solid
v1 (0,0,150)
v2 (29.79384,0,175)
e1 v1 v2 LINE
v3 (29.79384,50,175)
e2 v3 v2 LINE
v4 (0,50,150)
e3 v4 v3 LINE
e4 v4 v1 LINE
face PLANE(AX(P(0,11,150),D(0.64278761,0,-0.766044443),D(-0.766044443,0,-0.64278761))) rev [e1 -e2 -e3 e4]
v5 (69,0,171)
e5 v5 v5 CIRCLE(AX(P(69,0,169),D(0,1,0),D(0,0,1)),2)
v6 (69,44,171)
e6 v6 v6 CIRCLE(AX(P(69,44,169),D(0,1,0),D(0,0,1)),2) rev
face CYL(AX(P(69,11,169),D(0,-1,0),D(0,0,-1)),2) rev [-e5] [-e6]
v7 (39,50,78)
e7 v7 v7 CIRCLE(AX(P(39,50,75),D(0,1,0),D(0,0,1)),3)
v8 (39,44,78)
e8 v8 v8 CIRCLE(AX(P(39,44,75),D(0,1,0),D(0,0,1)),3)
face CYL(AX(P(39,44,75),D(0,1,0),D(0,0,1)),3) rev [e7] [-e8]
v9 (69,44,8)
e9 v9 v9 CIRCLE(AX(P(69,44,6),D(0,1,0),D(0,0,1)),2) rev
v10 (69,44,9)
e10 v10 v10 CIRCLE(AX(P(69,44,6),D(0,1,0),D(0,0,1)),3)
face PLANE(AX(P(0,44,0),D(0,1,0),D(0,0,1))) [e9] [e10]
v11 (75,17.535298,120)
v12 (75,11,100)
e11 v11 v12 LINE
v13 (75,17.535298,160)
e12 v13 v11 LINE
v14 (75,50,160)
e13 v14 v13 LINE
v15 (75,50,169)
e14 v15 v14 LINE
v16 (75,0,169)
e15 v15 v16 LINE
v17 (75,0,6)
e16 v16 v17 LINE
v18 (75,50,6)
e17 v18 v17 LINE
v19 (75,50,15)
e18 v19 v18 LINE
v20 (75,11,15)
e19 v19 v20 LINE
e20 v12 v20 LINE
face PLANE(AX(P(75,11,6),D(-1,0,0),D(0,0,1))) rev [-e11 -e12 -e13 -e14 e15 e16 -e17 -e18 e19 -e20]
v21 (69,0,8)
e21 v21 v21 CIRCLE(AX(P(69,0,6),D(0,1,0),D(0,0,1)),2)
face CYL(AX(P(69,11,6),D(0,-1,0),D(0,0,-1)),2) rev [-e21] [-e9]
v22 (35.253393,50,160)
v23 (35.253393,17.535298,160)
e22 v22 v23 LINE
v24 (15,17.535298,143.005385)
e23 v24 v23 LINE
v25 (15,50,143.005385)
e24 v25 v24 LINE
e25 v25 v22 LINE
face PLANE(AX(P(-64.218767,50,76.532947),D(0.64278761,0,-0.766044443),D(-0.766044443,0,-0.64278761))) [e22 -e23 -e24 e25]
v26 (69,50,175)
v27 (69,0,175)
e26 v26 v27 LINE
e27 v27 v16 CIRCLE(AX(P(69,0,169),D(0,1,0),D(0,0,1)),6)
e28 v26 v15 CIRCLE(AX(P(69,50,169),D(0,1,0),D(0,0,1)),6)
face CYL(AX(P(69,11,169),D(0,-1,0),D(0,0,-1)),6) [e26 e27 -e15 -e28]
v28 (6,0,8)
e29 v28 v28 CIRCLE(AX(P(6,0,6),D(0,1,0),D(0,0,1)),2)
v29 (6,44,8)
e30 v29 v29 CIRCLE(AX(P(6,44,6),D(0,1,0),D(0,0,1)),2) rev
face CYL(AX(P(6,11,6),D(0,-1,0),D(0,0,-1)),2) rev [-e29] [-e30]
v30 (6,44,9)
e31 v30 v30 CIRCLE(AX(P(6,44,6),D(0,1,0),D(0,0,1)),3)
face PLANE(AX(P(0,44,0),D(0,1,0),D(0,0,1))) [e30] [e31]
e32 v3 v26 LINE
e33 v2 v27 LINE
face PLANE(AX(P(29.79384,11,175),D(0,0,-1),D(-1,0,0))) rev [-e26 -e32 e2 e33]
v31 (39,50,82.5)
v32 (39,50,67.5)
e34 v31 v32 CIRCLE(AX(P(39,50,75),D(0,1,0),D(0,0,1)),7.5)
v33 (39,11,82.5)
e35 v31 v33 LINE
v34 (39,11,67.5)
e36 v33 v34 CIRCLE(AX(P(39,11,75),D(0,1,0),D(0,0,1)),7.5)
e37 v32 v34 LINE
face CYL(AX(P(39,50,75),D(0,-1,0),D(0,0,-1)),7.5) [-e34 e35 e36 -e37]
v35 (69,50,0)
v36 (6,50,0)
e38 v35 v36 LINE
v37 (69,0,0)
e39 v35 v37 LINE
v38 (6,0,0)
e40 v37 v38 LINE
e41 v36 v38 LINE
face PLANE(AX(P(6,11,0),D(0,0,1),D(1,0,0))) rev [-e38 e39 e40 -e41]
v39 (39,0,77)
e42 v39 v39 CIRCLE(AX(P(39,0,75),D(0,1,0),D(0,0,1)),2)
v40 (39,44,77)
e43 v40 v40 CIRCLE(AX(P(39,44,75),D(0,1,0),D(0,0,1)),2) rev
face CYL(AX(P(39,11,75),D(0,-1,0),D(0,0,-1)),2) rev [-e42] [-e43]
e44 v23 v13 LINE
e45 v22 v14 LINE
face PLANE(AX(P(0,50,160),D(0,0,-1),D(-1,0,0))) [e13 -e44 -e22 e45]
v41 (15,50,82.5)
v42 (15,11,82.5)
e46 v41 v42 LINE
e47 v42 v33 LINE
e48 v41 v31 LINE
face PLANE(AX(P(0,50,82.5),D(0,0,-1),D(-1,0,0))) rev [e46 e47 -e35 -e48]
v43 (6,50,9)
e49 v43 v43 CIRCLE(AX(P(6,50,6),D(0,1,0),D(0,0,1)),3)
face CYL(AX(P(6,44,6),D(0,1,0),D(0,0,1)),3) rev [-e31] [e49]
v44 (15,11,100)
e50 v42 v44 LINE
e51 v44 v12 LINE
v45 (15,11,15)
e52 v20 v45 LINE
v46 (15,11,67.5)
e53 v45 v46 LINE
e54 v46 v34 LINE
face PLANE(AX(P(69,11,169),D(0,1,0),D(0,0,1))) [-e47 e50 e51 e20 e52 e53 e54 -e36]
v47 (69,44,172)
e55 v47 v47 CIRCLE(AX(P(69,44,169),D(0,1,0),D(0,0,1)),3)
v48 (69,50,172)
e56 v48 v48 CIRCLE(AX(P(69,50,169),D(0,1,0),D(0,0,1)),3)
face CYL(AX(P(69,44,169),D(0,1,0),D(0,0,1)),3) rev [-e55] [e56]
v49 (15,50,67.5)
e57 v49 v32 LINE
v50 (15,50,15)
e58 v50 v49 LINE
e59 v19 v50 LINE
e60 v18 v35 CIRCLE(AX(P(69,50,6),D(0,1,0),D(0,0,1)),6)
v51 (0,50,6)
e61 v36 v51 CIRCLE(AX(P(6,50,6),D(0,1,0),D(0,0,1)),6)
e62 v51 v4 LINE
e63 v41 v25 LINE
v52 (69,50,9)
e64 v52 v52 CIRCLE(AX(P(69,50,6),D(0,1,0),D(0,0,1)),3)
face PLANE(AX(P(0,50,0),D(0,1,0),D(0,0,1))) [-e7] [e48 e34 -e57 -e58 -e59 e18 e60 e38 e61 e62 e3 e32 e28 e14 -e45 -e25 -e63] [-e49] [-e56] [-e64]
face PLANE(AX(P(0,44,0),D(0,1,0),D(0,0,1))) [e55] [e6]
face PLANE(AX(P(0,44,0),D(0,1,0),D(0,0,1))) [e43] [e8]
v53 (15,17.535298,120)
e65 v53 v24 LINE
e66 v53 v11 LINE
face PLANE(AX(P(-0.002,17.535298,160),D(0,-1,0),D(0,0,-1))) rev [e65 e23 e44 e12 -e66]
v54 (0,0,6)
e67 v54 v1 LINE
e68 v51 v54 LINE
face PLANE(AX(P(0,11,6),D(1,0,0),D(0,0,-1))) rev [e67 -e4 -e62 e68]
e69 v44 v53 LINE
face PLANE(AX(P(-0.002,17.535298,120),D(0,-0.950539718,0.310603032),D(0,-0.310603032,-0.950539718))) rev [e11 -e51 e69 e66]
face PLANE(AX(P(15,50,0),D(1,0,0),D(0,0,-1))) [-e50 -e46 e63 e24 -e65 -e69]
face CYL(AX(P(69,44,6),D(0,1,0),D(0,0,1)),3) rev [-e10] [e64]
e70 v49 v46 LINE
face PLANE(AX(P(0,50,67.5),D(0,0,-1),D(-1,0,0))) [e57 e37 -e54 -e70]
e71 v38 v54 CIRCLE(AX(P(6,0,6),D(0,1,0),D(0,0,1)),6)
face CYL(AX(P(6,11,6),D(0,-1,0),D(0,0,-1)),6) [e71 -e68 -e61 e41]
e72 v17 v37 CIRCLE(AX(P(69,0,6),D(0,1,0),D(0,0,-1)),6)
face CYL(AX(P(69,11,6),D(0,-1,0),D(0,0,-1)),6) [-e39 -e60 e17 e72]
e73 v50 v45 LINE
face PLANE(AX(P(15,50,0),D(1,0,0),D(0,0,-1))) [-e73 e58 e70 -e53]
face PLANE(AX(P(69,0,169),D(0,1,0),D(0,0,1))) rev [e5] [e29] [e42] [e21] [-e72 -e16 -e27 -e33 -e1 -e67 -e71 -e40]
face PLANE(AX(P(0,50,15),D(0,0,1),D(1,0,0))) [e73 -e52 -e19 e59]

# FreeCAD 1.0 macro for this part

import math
import FreeCAD as App
import Part
import Sketcher
Q = App.Units.Quantity

doc = App.newDocument("Part")
params = doc.addObject("Spreadsheet::Sheet", "Params")
for row, (alias, value) in enumerate([
    ("sketch1_diameter", "4 mm"),
    ("sketch1_radius", "6 mm"),
    ("sketch1_width", "63 mm"),
    ("sketch1_height", "163 mm"),
    ("sketch1_height2", "144 mm"),
    ("pad1_length", "11 mm"),
    ("sketch2_diameter", "4 mm"),
    ("sketch2_radius", "6 mm"),
    ("sketch2_radius2", "7.5 mm"),
    ("sketch2_width", "24 mm"),
    ("sketch2_width2", "60 mm"),
    ("pad2_length", "39 mm"),
    ("sketch3_width", "10 mm"),
    ("sketch3_height", "40 mm"),
    ("sketch3_length", "10 mm"),
    ("sketch4_diameter", "6 mm"),
    ("sketch4_diameter2", "4 mm"),
    ("pocket1_length", "6 mm"),
], start=1):
    params.set(f"A{row}", alias)
    params.set(f"B{row}", "=" + value)
    params.setAlias(f"B{row}", alias)

body = doc.addObject("PartDesign::Body", "Body")

sketch1 = body.newObject("Sketcher::SketchObject", "Sketch")
sketch1.AttachmentSupport = (doc.getObject("XZ_Plane"), [""])
sketch1.MapMode = "FlatFace"
sketch1.addGeometry([
    Part.LineSegment(App.Vector(0, 150, 0), App.Vector(29.8, 175, 0)),
    Part.LineSegment(App.Vector(29.8, 175, 0), App.Vector(69, 175, 0)),
    Part.ArcOfCircle(Part.Circle(App.Vector(69, 169, 0), App.Vector(0, 0, 1), 6), math.radians(0), math.radians(90)),
    Part.LineSegment(App.Vector(75, 169, 0), App.Vector(75, 6, 0)),
    Part.ArcOfCircle(Part.Circle(App.Vector(69, 6, 0), App.Vector(0, 0, 1), 6), math.radians(-90), math.radians(0)),
    Part.LineSegment(App.Vector(69, 0, 0), App.Vector(6, 0, 0)),
    Part.ArcOfCircle(Part.Circle(App.Vector(6, 6, 0), App.Vector(0, 0, 1), 6), math.radians(180), math.radians(270)),
    Part.LineSegment(App.Vector(0, 6, 0), App.Vector(0, 150, 0)),
    Part.Circle(App.Vector(69, 169, 0), App.Vector(0, 0, 1), 2),
    Part.Circle(App.Vector(6, 6, 0), App.Vector(0, 0, 1), 2),
    Part.Circle(App.Vector(39, 75, 0), App.Vector(0, 0, 1), 2),
    Part.Circle(App.Vector(69, 6, 0), App.Vector(0, 0, 1), 2),
], False)
sketch1.addConstraint([
    Sketcher.Constraint("Coincident", 0, 2, 1, 1),
    Sketcher.Constraint("Tangent", 1, 2, 2, 2),
    Sketcher.Constraint("Tangent", 2, 1, 3, 1),
    Sketcher.Constraint("Tangent", 3, 2, 4, 2),
    Sketcher.Constraint("Tangent", 4, 1, 5, 1),
    Sketcher.Constraint("Tangent", 5, 2, 6, 2),
    Sketcher.Constraint("Tangent", 6, 1, 7, 1),
    Sketcher.Constraint("Coincident", 7, 2, 0, 1),
    Sketcher.Constraint("Horizontal", 1),
    Sketcher.Constraint("Vertical", 3),
    Sketcher.Constraint("Horizontal", 5),
    Sketcher.Constraint("Vertical", 7),
    Sketcher.Constraint("Coincident", 8, 3, 2, 3),
    Sketcher.Constraint("Coincident", 9, 3, 6, 3),
    Sketcher.Constraint("Coincident", 11, 3, 4, 3),
    Sketcher.Constraint("Equal", 2, 4),
    Sketcher.Constraint("Equal", 4, 6),
    Sketcher.Constraint("Equal", 8, 9),
    Sketcher.Constraint("Equal", 9, 10),
    Sketcher.Constraint("Equal", 10, 11),
    Sketcher.Constraint("PointOnObject", 4, 1, -1),
    Sketcher.Constraint("PointOnObject", 6, 1, -2),
    Sketcher.Constraint("Diameter", 8, 4.0),
    Sketcher.Constraint("Radius", 2, 6.0),
    Sketcher.Constraint("DistanceX", 5, 2, 5, 1, 63.0),
    Sketcher.Constraint("DistanceY", 3, 2, 3, 1, 163.0),
    Sketcher.Constraint("DistanceY", 7, 1, 7, 2, 144.0),
    Sketcher.Constraint("Angle", 0, Q("40 deg")),
    Sketcher.Constraint("DistanceX", -1, 1, 10, 3, 39.0),
    Sketcher.Constraint("DistanceY", -1, 1, 10, 3, 75.0),
])
sketch1.setExpression("Constraints[22]", "Params.sketch1_diameter")
sketch1.setExpression("Constraints[23]", "Params.sketch1_radius")
sketch1.setExpression("Constraints[24]", "Params.sketch1_width")
sketch1.setExpression("Constraints[25]", "Params.sketch1_height")
sketch1.setExpression("Constraints[26]", "Params.sketch1_height2")
pad1 = body.newObject("PartDesign::Pad", "Pad")
pad1.Profile = sketch1
pad1.setExpression("Length", "Params.pad1_length")
pad1.Reversed = True

sketch2 = body.newObject("Sketcher::SketchObject", "Sketch001")
sketch2.AttachmentSupport = (doc.getObject("XZ_Plane"), [""])
sketch2.MapMode = "FlatFace"
sketch2.AttachmentOffset = App.Placement(App.Vector(0, 0, -11), App.Rotation())
sketch2.addGeometry([
    Part.LineSegment(App.Vector(39, 67.5, 0), App.Vector(15, 67.5, 0)),
    Part.LineSegment(App.Vector(15, 67.5, 0), App.Vector(15, 15, 0)),
    Part.LineSegment(App.Vector(15, 15, 0), App.Vector(75, 15, 0)),
    Part.LineSegment(App.Vector(75, 15, 0), App.Vector(75, 6, 0)),
    Part.ArcOfCircle(Part.Circle(App.Vector(69, 6, 0), App.Vector(0, 0, 1), 6), math.radians(-90), math.radians(0)),
    Part.LineSegment(App.Vector(69, 0, 0), App.Vector(6, 0, 0)),
    Part.ArcOfCircle(Part.Circle(App.Vector(6, 6, 0), App.Vector(0, 0, 1), 6), math.radians(180), math.radians(270)),
    Part.LineSegment(App.Vector(0, 6, 0), App.Vector(0, 150, 0)),
    Part.LineSegment(App.Vector(0, 150, 0), App.Vector(29.8, 175, 0)),
    Part.LineSegment(App.Vector(29.8, 175, 0), App.Vector(69, 175, 0)),
    Part.ArcOfCircle(Part.Circle(App.Vector(69, 169, 0), App.Vector(0, 0, 1), 6), math.radians(0), math.radians(90)),
    Part.LineSegment(App.Vector(75, 169, 0), App.Vector(75, 160, 0)),
    Part.LineSegment(App.Vector(75, 160, 0), App.Vector(35.3, 160, 0)),
    Part.LineSegment(App.Vector(35.3, 160, 0), App.Vector(15, 143, 0)),
    Part.LineSegment(App.Vector(15, 143, 0), App.Vector(15, 82.5, 0)),
    Part.LineSegment(App.Vector(15, 82.5, 0), App.Vector(39, 82.5, 0)),
    Part.ArcOfCircle(Part.Circle(App.Vector(39, 75, 0), App.Vector(0, 0, 1), 7.5), math.radians(-90), math.radians(90)),
    Part.Circle(App.Vector(69, 169, 0), App.Vector(0, 0, 1), 2),
    Part.Circle(App.Vector(6, 6, 0), App.Vector(0, 0, 1), 2),
    Part.Circle(App.Vector(39, 75, 0), App.Vector(0, 0, 1), 2),
    Part.Circle(App.Vector(69, 6, 0), App.Vector(0, 0, 1), 2),
], False)
sketch2.addConstraint([
    Sketcher.Constraint("Coincident", 0, 2, 1, 1),
    Sketcher.Constraint("Coincident", 1, 2, 2, 1),
    Sketcher.Constraint("Coincident", 2, 2, 3, 1),
    Sketcher.Constraint("Tangent", 3, 2, 4, 2),
    Sketcher.Constraint("Tangent", 4, 1, 5, 1),
    Sketcher.Constraint("Tangent", 5, 2, 6, 2),
    Sketcher.Constraint("Tangent", 6, 1, 7, 1),
    Sketcher.Constraint("Coincident", 7, 2, 8, 1),
    Sketcher.Constraint("Coincident", 8, 2, 9, 1),
    Sketcher.Constraint("Tangent", 9, 2, 10, 2),
    Sketcher.Constraint("Tangent", 10, 1, 11, 1),
    Sketcher.Constraint("Coincident", 11, 2, 12, 1),
    Sketcher.Constraint("Coincident", 12, 2, 13, 1),
    Sketcher.Constraint("Coincident", 13, 2, 14, 1),
    Sketcher.Constraint("Coincident", 14, 2, 15, 1),
    Sketcher.Constraint("Tangent", 15, 2, 16, 2),
    Sketcher.Constraint("Tangent", 16, 1, 0, 1),
    Sketcher.Constraint("Horizontal", 0),
    Sketcher.Constraint("Vertical", 1),
    Sketcher.Constraint("Horizontal", 2),
    Sketcher.Constraint("Vertical", 3),
    Sketcher.Constraint("Horizontal", 5),
    Sketcher.Constraint("Vertical", 7),
    Sketcher.Constraint("Horizontal", 9),
    Sketcher.Constraint("Vertical", 11),
    Sketcher.Constraint("Horizontal", 12),
    Sketcher.Constraint("Vertical", 14),
    Sketcher.Constraint("Horizontal", 15),
    Sketcher.Constraint("Coincident", 17, 3, 10, 3),
    Sketcher.Constraint("Coincident", 18, 3, 6, 3),
    Sketcher.Constraint("Coincident", 19, 3, 16, 3),
    Sketcher.Constraint("Coincident", 20, 3, 4, 3),
    Sketcher.Constraint("Equal", 4, 6),
    Sketcher.Constraint("Equal", 6, 10),
    Sketcher.Constraint("Equal", 17, 18),
    Sketcher.Constraint("Equal", 18, 19),
    Sketcher.Constraint("Equal", 19, 20),
    Sketcher.Constraint("PointOnObject", 4, 1, -1),
    Sketcher.Constraint("PointOnObject", 6, 1, -2),
    Sketcher.Constraint("Parallel", 8, 13),
    Sketcher.Constraint("Vertical", 4, 3, 10, 3),
    Sketcher.Constraint("Vertical", 1, 2, 13, 2),
    Sketcher.Constraint("Equal", 3, 11),
    Sketcher.Constraint("Diameter", 17, 4.0),
    Sketcher.Constraint("Radius", 4, 6.0),
    Sketcher.Constraint("Radius", 16, 7.5),
    Sketcher.Constraint("DistanceX", 0, 2, 0, 1, 24.0),
    Sketcher.Constraint("DistanceX", 2, 1, 2, 2, 60.0),
    Sketcher.Constraint("DistanceX", 5, 2, 5, 1, 63.0),
    Sketcher.Constraint("DistanceY", 3, 2, 3, 1, 9.0),
    Sketcher.Constraint("DistanceY", 7, 1, 7, 2, 144.0),
    Sketcher.Constraint("Angle", 8, Q("40 deg")),
    Sketcher.Constraint("DistanceY", 1, 2, 1, 1, 52.5),
    Sketcher.Constraint("DistanceY", -1, 1, 10, 3, 169.0),
    Sketcher.Constraint("DistanceX", 12, 2, 12, 1, 39.746607),
])
sketch2.setExpression("Constraints[43]", "Params.sketch2_diameter")
sketch2.setExpression("Constraints[44]", "Params.sketch2_radius")
sketch2.setExpression("Constraints[45]", "Params.sketch2_radius2")
sketch2.setExpression("Constraints[46]", "Params.sketch2_width")
sketch2.setExpression("Constraints[47]", "Params.sketch2_width2")
pad2 = body.newObject("PartDesign::Pad", "Pad001")
pad2.Profile = sketch2
pad2.setExpression("Length", "Params.pad2_length")
pad2.Reversed = True

sketch3 = body.newObject("Sketcher::SketchObject", "Sketch002")
sketch3.AttachmentSupport = (doc.getObject("YZ_Plane"), [""])
sketch3.MapMode = "FlatFace"
sketch3.AttachmentOffset = App.Placement(App.Vector(0, 0, 75), App.Rotation())
sketch3.addGeometry([
    Part.LineSegment(App.Vector(18, 120, 0), App.Vector(18, 160, 0)),
    Part.LineSegment(App.Vector(18, 160, 0), App.Vector(8, 160, 0)),
    Part.LineSegment(App.Vector(8, 160, 0), App.Vector(8, 122, 0)),
    Part.LineSegment(App.Vector(8, 122, 0), App.Vector(1, 103, 0)),
    Part.LineSegment(App.Vector(1, 103, 0), App.Vector(11, 100, 0)),
    Part.LineSegment(App.Vector(11, 100, 0), App.Vector(18, 120, 0)),
], False)
sketch3.addConstraint([
    Sketcher.Constraint("Coincident", 0, 2, 1, 1),
    Sketcher.Constraint("Coincident", 1, 2, 2, 1),
    Sketcher.Constraint("Coincident", 2, 2, 3, 1),
    Sketcher.Constraint("Coincident", 3, 2, 4, 1),
    Sketcher.Constraint("Coincident", 4, 2, 5, 1),
    Sketcher.Constraint("Coincident", 5, 2, 0, 1),
    Sketcher.Constraint("Vertical", 0),
    Sketcher.Constraint("Horizontal", 1),
    Sketcher.Constraint("Vertical", 2),
    Sketcher.Constraint("Perpendicular", 3, 4),
    Sketcher.Constraint("Perpendicular", 4, 5),
    Sketcher.Constraint("DistanceX", 1, 2, 1, 1, 10.0),
    Sketcher.Constraint("DistanceY", 0, 1, 0, 2, 40.0),
    Sketcher.Constraint("Distance", 4, 10.0),
    Sketcher.Constraint("DistanceY", -1, 1, 0, 2, 160.0),
    Sketcher.Constraint("DistanceX", -1, 1, 4, 2, 11.0),
    Sketcher.Constraint("DistanceY", -1, 1, 4, 2, 100.0),
    Sketcher.Constraint("DistanceX", -1, 1, 0, 2, 17.535298),
])
sketch3.setExpression("Constraints[11]", "Params.sketch3_width")
sketch3.setExpression("Constraints[12]", "Params.sketch3_height")
sketch3.setExpression("Constraints[13]", "Params.sketch3_length")
pad3 = body.newObject("PartDesign::Pad", "Pad002")
pad3.Profile = sketch3
pad3.Type = "UpToFirst"
pad3.Reversed = True

sketch4 = body.newObject("Sketcher::SketchObject", "Sketch003")
sketch4.AttachmentSupport = (doc.getObject("XZ_Plane"), [""])
sketch4.MapMode = "FlatFace"
sketch4.AttachmentOffset = App.Placement(App.Vector(0, 0, -44), App.Rotation())
sketch4.addGeometry([
    Part.Circle(App.Vector(69, 6, 0), App.Vector(0, 0, 1), 3),
    Part.Circle(App.Vector(6, 6, 0), App.Vector(0, 0, 1), 3),
    Part.Circle(App.Vector(6, 6, 0), App.Vector(0, 0, 1), 2),
    Part.Circle(App.Vector(39, 75, 0), App.Vector(0, 0, 1), 3),
    Part.Circle(App.Vector(39, 75, 0), App.Vector(0, 0, 1), 2),
    Part.Circle(App.Vector(69, 169, 0), App.Vector(0, 0, 1), 3),
    Part.Circle(App.Vector(69, 169, 0), App.Vector(0, 0, 1), 2),
], False)
sketch4.addConstraint([
    Sketcher.Constraint("Coincident", 2, 3, 1, 3),
    Sketcher.Constraint("Coincident", 4, 3, 3, 3),
    Sketcher.Constraint("Coincident", 6, 3, 5, 3),
    Sketcher.Constraint("Equal", 0, 1),
    Sketcher.Constraint("Equal", 1, 3),
    Sketcher.Constraint("Equal", 2, 4),
    Sketcher.Constraint("Equal", 3, 5),
    Sketcher.Constraint("Equal", 4, 6),
    Sketcher.Constraint("Horizontal", 0, 3, 1, 3),
    Sketcher.Constraint("Vertical", 0, 3, 5, 3),
    Sketcher.Constraint("Diameter", 0, 6.0),
    Sketcher.Constraint("Diameter", 2, 4.0),
    Sketcher.Constraint("DistanceX", -1, 1, 0, 3, 69.0),
    Sketcher.Constraint("DistanceY", -1, 1, 0, 3, 6.0),
    Sketcher.Constraint("DistanceX", -1, 1, 1, 3, 6.0),
    Sketcher.Constraint("DistanceX", -1, 1, 3, 3, 39.0),
    Sketcher.Constraint("DistanceY", -1, 1, 3, 3, 75.0),
    Sketcher.Constraint("DistanceY", -1, 1, 5, 3, 169.0),
])
sketch4.setExpression("Constraints[10]", "Params.sketch4_diameter")
sketch4.setExpression("Constraints[11]", "Params.sketch4_diameter2")
pocket1 = body.newObject("PartDesign::Pocket", "Pocket")
pocket1.Profile = sketch4
pocket1.setExpression("Length", "Params.pocket1_length")

doc.recompute()
